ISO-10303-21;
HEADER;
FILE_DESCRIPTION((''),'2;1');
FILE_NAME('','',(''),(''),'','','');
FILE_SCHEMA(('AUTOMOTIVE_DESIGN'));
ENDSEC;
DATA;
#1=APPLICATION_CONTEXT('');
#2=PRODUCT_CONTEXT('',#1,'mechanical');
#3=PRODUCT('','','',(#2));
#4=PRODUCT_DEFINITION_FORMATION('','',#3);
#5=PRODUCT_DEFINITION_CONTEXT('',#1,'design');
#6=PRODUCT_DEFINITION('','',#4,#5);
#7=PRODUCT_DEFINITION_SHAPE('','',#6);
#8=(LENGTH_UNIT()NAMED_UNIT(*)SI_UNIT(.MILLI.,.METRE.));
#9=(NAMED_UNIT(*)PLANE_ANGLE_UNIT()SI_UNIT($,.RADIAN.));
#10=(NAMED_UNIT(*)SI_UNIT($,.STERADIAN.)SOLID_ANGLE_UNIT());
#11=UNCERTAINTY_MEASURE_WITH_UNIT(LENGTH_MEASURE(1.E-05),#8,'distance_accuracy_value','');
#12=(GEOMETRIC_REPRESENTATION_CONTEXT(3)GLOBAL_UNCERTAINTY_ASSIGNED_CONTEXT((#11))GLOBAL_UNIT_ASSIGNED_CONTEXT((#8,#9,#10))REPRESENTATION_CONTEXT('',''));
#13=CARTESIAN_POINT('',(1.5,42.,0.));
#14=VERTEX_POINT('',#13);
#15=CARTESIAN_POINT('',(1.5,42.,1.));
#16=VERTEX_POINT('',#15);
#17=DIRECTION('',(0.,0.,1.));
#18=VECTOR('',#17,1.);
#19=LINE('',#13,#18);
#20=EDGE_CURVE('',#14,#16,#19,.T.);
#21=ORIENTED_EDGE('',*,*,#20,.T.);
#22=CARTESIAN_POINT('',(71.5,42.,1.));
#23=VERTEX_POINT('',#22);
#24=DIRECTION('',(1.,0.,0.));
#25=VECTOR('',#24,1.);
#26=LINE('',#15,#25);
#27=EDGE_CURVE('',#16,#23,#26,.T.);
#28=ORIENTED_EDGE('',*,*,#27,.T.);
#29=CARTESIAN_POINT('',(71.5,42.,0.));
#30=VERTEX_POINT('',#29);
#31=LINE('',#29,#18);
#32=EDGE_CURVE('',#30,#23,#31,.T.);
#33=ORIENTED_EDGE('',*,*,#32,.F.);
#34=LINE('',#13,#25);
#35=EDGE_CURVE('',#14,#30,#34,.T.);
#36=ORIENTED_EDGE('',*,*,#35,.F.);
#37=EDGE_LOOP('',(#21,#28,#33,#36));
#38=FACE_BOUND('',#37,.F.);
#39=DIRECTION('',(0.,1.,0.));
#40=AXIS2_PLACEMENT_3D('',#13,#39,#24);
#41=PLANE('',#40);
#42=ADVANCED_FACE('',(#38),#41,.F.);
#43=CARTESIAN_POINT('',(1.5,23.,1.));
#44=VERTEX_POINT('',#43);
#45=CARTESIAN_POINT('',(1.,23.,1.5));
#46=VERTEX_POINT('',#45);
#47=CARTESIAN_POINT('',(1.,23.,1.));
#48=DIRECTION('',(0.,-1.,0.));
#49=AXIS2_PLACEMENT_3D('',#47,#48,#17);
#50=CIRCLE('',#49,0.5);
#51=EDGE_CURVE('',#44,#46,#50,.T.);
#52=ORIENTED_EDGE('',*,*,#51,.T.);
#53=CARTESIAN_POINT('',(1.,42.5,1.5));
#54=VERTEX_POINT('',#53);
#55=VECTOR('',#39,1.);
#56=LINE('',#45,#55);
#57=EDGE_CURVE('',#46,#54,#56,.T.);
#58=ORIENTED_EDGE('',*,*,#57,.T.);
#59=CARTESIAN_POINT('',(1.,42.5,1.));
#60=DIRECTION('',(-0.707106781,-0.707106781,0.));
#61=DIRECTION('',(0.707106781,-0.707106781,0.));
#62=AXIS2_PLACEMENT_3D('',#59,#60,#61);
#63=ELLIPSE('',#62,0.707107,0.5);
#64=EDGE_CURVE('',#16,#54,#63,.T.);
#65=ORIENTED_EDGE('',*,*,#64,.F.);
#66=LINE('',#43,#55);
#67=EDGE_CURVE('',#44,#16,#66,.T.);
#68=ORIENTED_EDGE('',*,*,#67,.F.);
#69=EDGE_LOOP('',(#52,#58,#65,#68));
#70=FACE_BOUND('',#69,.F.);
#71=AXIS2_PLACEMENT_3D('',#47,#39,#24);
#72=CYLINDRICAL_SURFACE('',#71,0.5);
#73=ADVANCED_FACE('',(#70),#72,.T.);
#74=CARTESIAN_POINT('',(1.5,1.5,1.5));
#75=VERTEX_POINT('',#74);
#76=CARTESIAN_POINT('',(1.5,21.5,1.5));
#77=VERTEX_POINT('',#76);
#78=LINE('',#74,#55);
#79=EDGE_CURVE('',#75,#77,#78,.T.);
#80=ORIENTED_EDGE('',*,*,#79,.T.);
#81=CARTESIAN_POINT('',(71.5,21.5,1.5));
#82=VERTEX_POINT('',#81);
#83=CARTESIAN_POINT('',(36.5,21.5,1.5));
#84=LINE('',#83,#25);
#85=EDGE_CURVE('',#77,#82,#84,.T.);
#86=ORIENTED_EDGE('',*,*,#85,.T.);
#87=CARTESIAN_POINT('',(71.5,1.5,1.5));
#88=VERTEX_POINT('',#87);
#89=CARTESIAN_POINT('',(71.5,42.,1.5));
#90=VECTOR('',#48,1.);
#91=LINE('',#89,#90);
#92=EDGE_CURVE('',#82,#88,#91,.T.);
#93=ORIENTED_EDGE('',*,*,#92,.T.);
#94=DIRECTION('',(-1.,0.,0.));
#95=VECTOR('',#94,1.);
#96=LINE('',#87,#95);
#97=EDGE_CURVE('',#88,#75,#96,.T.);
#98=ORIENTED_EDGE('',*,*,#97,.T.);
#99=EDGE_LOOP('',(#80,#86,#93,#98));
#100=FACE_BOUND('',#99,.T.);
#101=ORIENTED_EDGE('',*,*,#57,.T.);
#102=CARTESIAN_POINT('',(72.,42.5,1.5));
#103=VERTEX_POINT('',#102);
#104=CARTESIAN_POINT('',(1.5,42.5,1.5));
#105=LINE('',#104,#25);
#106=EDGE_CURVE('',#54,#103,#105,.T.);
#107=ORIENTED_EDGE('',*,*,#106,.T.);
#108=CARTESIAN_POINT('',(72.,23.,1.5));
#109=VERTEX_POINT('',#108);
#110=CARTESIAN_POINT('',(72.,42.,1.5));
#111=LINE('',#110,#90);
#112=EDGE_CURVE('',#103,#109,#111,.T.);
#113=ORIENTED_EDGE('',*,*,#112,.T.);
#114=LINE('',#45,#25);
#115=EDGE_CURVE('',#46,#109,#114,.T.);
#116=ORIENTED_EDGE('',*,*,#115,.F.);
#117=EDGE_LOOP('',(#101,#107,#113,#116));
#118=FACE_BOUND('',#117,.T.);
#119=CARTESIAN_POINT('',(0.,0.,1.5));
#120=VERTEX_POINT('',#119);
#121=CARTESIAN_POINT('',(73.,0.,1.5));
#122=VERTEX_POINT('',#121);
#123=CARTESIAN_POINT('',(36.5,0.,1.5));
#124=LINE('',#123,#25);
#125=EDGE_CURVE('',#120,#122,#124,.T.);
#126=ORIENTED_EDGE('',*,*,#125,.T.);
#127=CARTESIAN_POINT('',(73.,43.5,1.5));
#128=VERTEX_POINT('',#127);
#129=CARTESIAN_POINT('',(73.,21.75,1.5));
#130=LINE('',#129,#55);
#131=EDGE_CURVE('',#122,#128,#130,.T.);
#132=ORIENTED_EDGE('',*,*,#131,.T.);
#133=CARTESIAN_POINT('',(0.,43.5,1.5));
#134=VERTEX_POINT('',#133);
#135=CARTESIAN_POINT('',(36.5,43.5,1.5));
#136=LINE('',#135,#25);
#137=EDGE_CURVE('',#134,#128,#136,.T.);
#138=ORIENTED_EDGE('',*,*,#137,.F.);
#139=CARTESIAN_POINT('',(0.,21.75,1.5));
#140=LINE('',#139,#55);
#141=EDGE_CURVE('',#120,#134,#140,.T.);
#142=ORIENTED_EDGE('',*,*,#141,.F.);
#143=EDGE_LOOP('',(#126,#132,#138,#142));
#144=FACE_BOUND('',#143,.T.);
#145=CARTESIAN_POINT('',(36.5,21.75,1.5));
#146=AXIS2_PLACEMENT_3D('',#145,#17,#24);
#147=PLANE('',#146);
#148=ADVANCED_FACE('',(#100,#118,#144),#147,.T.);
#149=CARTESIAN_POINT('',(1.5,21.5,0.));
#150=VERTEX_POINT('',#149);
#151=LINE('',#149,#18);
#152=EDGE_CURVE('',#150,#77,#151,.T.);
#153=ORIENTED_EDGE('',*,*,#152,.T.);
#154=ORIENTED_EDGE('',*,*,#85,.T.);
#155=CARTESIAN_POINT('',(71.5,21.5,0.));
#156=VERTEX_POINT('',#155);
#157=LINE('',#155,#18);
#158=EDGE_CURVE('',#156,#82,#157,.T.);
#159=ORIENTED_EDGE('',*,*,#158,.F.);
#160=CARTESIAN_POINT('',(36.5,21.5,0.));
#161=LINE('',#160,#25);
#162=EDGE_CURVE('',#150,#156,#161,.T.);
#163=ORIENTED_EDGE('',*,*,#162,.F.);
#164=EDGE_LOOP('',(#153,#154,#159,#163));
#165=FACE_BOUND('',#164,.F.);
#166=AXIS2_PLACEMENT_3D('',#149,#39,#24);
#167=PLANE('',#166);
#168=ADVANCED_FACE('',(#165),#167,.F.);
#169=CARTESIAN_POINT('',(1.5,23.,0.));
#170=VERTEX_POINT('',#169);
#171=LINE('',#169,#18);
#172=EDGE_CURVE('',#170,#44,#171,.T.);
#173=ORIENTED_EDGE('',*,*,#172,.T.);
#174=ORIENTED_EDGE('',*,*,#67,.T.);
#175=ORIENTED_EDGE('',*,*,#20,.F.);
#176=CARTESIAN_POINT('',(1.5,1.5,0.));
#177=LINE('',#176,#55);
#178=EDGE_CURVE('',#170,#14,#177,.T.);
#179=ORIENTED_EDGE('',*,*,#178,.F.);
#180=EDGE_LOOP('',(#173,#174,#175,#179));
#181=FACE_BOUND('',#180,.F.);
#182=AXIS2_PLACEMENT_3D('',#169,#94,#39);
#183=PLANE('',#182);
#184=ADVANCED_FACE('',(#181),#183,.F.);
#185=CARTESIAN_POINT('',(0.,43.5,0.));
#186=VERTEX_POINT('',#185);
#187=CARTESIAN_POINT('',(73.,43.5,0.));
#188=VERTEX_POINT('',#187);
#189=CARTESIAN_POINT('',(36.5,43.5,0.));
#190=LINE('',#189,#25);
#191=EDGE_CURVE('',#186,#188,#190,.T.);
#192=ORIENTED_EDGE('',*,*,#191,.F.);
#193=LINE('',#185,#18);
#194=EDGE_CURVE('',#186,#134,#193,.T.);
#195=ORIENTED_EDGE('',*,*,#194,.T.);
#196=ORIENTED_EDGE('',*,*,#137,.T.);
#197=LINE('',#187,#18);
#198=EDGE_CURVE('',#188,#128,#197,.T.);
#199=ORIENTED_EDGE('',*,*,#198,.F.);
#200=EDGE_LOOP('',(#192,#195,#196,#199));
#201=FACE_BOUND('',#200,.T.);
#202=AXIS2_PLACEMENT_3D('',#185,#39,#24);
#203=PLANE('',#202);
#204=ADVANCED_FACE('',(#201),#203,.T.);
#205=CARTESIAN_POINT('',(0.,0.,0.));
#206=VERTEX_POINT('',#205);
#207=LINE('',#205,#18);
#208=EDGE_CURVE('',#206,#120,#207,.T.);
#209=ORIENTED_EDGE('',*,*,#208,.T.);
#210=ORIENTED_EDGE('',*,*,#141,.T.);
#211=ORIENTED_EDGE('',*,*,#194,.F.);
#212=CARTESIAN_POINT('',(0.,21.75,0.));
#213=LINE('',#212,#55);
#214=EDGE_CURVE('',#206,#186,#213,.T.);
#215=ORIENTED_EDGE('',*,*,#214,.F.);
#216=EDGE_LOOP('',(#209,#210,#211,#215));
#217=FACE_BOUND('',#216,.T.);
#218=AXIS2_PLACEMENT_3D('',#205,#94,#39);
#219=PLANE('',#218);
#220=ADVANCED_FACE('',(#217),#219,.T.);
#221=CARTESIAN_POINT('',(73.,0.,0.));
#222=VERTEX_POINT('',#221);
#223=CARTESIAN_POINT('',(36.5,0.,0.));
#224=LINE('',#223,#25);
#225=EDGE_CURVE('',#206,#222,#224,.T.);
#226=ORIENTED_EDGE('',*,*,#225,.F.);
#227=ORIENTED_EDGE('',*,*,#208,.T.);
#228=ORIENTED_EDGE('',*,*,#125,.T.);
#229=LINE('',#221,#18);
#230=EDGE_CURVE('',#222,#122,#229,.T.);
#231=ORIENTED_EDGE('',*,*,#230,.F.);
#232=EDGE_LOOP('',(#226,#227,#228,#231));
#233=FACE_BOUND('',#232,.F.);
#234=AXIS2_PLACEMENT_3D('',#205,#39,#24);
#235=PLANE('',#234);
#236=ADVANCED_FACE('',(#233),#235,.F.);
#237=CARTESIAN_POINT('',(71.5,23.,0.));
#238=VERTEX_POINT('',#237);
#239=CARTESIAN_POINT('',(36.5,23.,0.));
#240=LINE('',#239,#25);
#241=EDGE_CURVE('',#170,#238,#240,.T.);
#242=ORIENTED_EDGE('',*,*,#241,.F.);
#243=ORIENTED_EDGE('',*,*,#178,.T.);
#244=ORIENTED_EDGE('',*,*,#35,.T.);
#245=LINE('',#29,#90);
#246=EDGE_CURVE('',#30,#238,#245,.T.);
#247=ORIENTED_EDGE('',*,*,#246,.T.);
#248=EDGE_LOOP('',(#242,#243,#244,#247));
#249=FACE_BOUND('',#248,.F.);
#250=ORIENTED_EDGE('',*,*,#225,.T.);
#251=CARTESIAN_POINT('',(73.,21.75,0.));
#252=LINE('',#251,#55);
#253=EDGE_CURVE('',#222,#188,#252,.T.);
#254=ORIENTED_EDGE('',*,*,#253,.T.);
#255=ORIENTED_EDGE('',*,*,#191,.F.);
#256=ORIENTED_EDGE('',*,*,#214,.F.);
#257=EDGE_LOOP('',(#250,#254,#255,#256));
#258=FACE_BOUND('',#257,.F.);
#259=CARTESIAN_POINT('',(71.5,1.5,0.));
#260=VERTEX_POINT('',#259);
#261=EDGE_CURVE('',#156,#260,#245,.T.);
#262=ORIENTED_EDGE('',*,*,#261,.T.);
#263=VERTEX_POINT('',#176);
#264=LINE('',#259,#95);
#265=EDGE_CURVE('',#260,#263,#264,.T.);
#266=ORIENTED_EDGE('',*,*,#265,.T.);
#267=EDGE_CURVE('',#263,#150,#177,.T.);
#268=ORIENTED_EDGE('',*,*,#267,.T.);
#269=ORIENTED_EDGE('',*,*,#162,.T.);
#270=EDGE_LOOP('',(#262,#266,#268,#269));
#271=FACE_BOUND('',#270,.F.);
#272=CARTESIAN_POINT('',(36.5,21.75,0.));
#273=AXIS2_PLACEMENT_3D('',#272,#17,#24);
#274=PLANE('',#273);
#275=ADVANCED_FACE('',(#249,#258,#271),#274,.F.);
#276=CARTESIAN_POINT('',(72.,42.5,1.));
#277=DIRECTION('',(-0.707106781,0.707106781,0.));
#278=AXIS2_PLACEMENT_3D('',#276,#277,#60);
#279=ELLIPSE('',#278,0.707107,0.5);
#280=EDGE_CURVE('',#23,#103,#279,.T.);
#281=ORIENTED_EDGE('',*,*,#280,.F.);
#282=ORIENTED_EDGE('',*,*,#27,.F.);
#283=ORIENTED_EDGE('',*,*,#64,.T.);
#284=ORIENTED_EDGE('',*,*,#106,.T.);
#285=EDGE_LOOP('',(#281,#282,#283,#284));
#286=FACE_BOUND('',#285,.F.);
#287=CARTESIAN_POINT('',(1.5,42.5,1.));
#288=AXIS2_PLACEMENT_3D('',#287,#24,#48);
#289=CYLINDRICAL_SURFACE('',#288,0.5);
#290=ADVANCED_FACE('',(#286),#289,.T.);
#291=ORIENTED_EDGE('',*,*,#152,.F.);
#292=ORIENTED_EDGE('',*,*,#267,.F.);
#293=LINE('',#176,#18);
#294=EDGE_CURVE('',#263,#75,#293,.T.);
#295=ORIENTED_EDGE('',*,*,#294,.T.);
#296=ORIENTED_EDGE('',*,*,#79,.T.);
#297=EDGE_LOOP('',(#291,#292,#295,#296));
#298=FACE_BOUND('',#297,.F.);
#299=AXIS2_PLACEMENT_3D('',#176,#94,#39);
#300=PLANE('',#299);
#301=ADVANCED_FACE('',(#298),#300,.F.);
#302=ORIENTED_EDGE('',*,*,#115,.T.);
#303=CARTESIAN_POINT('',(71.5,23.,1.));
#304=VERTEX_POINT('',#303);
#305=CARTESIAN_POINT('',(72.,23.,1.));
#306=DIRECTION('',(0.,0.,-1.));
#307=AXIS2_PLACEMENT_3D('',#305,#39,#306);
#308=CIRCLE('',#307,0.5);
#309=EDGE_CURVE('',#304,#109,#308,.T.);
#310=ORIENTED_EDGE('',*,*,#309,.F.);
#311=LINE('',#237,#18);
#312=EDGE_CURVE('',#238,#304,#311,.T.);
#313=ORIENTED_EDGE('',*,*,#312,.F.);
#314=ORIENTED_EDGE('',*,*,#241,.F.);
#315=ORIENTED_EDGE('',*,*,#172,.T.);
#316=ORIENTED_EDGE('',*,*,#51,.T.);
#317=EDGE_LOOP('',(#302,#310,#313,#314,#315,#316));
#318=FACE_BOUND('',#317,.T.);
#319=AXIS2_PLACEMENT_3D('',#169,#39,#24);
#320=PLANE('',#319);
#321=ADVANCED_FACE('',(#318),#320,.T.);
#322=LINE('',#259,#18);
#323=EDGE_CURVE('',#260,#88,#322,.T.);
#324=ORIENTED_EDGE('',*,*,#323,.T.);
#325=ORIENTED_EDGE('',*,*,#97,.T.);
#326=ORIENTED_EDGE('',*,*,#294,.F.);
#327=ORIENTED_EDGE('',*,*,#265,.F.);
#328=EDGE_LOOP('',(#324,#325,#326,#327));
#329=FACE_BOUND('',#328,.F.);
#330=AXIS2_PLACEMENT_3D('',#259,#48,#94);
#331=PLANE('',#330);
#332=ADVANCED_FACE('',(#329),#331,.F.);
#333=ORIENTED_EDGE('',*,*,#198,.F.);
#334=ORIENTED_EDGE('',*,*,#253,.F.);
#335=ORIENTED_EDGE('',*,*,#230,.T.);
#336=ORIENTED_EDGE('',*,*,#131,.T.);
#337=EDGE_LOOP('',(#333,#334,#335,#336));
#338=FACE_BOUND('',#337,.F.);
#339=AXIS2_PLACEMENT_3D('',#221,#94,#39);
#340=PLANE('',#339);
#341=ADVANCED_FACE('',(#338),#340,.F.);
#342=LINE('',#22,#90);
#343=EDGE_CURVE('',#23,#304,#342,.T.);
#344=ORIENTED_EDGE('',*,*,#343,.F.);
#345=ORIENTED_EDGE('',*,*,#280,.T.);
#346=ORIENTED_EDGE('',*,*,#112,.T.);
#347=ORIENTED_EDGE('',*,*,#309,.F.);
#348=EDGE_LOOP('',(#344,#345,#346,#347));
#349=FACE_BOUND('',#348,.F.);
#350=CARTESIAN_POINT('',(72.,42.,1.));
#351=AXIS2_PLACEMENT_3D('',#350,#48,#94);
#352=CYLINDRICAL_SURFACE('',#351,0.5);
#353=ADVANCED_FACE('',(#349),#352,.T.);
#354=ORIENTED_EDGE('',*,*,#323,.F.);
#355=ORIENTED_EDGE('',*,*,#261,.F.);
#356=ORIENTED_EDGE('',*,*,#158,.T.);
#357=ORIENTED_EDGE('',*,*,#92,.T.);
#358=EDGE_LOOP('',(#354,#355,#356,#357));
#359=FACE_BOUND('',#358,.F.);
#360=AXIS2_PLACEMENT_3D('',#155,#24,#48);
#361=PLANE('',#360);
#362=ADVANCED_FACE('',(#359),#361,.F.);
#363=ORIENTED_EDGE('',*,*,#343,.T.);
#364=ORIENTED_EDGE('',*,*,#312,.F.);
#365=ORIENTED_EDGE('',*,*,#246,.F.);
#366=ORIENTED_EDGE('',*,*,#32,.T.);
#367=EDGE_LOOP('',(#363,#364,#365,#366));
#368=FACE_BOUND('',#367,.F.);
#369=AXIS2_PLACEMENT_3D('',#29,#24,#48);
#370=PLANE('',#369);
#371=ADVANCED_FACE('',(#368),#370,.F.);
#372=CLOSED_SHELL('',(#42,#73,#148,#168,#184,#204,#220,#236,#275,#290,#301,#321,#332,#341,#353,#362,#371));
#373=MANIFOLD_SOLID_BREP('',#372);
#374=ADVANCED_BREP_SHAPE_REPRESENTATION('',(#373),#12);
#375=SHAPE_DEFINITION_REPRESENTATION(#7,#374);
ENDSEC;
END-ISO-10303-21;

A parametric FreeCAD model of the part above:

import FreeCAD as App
import Part
import Sketcher
Q = App.Units.Quantity


def edges_at(feature, points):
    """Names of the edges that pass closest to the given points."""
    edges = feature.Shape.Edges
    near = lambda p: min(range(len(edges)), key=lambda i: edges[i].distToShape(Part.Vertex(*p))[0])
    return sorted({f"Edge{near(p) + 1}" for p in points})


def add_polygon(sketch, points):
    """Adds a closed chain of lines whose ends are joined by coincident constraints."""
    first, n = sketch.GeometryCount, len(points)
    for a, b in zip(points, points[1:] + points[:1]):
        sketch.addGeometry(Part.LineSegment(App.Vector(*a, 0), App.Vector(*b, 0)), False)
    for i in range(n):
        sketch.addConstraint(Sketcher.Constraint("Coincident", first + i, 2, first + (i + 1) % n, 1))

doc = App.newDocument("Part")
body = doc.addObject("PartDesign::Body", "Body")

sketch1 = doc.addObject("Sketcher::SketchObject", "Sketch")
body.addObject(sketch1)
sketch1.AttachmentSupport = (doc.XY_Plane, [""])
sketch1.MapMode = "FlatFace"
add_polygon(sketch1, [(0, 44), (0, 0), (73, 0), (73, 44)])
add_polygon(sketch1, [(2, 2), (2, 22), (72, 22), (72, 2)])
add_polygon(sketch1, [(2, 23), (2, 42), (72, 42), (72, 23)])
sketch1.addConstraint([
    Sketcher.Constraint("Vertical", 0),
    Sketcher.Constraint("Horizontal", 1),
    Sketcher.Constraint("Vertical", 2),
    Sketcher.Constraint("Horizontal", 3),
    Sketcher.Constraint("Vertical", 4),
    Sketcher.Constraint("Horizontal", 5),
    Sketcher.Constraint("Vertical", 6),
    Sketcher.Constraint("Horizontal", 7),
    Sketcher.Constraint("Vertical", 8),
    Sketcher.Constraint("Horizontal", 9),
    Sketcher.Constraint("Vertical", 10),
    Sketcher.Constraint("Horizontal", 11),
    Sketcher.Constraint("Coincident", 0, 2, -1, 1),
    Sketcher.Constraint("Vertical", 7, 2, 8, 2),
    Sketcher.Constraint("Vertical", 6, 2, 9, 2),
    Sketcher.Constraint("DistanceX", 1, 1, 1, 2, Q("73 mm")),
    Sketcher.Constraint("DistanceX", 5, 1, 5, 2, Q("70 mm")),
    Sketcher.Constraint("DistanceY", 4, 1, 4, 2, Q("20 mm")),
    Sketcher.Constraint("DistanceY", 8, 1, 8, 2, Q("19 mm")),
    Sketcher.Constraint("DistanceY", 0, 2, 0, 1, Q("43.5 mm")),
    Sketcher.Constraint("DistanceY", -1, 1, 8, 2, Q("42 mm")),
    Sketcher.Constraint("DistanceY", 4, 2, 3, 2, Q("22 mm")),
    Sketcher.Constraint("DistanceX", -1, 1, 4, 2, Q("1.5 mm")),
])
pad1 = doc.addObject("PartDesign::Pad", "Pad")
body.addObject(pad1)
pad1.Profile = sketch1
pad1.Length = 1.5
doc.recompute()

fillet = doc.addObject("PartDesign::Fillet", "Fillet")
body.addObject(fillet)
fillet.Base = (pad1, edges_at(pad1, [(71.5, 32.5, 1.5), (36.5, 42, 1.5), (1.5, 32.5, 1.5)]))
fillet.Radius = 0.5

doc.recompute()
